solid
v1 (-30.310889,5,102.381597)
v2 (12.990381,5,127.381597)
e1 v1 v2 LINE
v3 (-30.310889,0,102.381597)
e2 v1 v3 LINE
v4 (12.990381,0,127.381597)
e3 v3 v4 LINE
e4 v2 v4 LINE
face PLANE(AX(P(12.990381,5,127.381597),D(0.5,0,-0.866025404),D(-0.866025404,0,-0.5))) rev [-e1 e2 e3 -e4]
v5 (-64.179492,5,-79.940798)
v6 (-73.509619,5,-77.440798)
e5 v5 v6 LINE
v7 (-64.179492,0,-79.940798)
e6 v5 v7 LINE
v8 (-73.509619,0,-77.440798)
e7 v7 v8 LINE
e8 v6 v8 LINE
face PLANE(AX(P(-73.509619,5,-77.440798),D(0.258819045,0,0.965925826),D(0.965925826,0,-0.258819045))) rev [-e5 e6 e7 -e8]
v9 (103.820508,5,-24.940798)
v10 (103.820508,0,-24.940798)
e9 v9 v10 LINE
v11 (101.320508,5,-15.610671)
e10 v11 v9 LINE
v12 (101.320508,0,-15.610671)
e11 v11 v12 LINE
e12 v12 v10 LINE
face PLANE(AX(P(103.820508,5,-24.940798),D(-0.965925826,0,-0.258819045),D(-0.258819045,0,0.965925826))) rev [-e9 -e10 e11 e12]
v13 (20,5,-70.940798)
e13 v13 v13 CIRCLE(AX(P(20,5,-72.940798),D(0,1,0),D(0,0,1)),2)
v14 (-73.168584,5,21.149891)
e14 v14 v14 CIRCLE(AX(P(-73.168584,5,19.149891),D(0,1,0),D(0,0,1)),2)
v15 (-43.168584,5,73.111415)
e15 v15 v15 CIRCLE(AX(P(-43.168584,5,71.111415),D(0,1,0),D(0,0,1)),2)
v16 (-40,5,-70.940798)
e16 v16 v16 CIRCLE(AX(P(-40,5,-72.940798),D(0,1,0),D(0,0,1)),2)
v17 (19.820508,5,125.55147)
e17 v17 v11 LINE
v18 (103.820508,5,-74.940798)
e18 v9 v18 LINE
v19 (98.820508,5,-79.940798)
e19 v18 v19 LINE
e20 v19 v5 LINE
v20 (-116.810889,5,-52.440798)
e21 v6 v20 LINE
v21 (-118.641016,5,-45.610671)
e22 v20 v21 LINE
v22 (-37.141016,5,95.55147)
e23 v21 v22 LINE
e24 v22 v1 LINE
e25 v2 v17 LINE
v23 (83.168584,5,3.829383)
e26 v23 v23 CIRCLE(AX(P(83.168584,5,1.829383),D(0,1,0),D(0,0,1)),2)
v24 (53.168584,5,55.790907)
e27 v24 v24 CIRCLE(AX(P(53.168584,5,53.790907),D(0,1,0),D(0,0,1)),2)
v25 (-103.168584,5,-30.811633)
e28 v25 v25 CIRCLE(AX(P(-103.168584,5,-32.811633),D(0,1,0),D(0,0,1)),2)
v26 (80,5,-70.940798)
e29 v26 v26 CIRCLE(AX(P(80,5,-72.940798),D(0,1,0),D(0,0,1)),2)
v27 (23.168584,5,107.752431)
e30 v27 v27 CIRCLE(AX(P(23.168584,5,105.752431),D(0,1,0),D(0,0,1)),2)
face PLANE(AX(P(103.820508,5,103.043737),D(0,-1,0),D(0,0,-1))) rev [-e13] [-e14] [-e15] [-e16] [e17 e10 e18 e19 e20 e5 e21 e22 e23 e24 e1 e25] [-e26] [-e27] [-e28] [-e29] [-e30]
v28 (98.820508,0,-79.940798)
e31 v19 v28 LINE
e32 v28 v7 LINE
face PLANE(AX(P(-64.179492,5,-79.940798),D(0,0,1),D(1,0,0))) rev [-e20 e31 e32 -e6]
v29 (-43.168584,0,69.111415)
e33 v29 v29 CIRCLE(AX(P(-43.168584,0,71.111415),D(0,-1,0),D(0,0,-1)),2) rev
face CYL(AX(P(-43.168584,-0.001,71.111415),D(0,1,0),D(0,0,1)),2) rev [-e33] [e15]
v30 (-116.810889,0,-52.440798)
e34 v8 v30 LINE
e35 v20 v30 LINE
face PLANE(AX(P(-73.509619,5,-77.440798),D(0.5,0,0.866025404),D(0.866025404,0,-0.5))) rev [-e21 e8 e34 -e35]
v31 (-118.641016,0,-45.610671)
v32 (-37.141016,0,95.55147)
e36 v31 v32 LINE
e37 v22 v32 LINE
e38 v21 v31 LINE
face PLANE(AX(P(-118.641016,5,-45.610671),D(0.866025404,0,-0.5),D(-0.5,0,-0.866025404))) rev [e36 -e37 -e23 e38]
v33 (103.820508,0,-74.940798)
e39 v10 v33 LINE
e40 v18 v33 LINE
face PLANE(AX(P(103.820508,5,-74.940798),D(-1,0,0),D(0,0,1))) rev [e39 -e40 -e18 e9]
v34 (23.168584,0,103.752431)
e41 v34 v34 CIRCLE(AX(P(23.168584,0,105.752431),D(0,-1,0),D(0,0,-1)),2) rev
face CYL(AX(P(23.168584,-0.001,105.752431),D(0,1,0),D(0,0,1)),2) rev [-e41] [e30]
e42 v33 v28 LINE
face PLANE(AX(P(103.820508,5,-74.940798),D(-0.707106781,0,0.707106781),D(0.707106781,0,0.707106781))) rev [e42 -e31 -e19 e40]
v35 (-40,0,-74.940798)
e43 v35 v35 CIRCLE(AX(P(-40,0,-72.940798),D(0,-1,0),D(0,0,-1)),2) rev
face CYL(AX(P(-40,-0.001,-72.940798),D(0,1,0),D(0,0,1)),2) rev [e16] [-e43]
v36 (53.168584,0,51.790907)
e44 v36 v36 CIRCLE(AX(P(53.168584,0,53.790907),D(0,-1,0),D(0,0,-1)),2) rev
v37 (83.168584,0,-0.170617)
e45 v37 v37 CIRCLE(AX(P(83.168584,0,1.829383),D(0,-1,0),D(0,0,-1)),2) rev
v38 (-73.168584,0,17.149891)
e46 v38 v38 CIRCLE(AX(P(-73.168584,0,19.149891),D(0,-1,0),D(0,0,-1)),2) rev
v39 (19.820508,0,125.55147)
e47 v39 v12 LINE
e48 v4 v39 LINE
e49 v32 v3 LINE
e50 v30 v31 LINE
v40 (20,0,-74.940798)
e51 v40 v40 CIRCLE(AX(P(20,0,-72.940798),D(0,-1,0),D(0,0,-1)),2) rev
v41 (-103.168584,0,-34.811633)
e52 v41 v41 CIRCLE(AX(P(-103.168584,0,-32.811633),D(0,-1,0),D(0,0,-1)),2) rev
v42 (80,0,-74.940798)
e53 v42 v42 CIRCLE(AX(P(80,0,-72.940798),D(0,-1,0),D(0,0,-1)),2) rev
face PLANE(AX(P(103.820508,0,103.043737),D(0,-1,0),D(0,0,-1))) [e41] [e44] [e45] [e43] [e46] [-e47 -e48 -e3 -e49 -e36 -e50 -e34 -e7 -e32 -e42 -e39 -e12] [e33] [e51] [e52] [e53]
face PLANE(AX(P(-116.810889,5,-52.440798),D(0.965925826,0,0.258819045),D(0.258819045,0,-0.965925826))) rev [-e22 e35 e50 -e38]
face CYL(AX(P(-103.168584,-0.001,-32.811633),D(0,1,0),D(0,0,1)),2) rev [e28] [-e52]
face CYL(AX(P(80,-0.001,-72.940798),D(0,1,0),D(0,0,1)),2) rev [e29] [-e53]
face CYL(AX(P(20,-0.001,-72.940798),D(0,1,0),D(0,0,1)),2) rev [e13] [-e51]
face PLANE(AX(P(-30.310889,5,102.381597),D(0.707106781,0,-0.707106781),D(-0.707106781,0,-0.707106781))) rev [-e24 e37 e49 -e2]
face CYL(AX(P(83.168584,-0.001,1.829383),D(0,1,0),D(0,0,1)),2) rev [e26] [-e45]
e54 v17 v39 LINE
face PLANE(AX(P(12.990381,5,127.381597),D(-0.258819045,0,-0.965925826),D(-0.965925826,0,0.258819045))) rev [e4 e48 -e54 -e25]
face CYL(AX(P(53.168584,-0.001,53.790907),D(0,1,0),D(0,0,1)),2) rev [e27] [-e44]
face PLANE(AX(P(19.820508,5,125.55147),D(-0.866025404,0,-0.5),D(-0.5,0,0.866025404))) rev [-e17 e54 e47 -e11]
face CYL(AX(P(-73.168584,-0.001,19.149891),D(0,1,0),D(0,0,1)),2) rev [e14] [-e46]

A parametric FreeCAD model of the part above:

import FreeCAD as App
import Part
import Sketcher
Q = App.Units.Quantity


def add_polygon(sketch, points):
    """Adds a closed chain of lines whose ends are joined by coincident constraints."""
    first, n = sketch.GeometryCount, len(points)
    for a, b in zip(points, points[1:] + points[:1]):
        sketch.addGeometry(Part.LineSegment(App.Vector(*a, 0), App.Vector(*b, 0)), False)
    for i in range(n):
        sketch.addConstraint(Sketcher.Constraint("Coincident", first + i, 2, first + (i + 1) % n, 1))

doc = App.newDocument("Part")
params = doc.addObject("Spreadsheet::Sheet", "Params")
for row, (alias, value) in enumerate([
    ("sketch1_width", "163 mm"),
    ("sketch1_height", "50 mm"),
    ("pad1_length", "5 mm"),
    ("sketch2_diameter", "4 mm"),
    ("sketch3_diameter", "4 mm"),
    ("sketch4_diameter", "4 mm"),
    ("sketch5_diameter", "4 mm"),
    ("sketch6_diameter", "4 mm"),
    ("sketch7_diameter", "4 mm"),
    ("sketch8_diameter", "4 mm"),
    ("sketch9_diameter", "4 mm"),
    ("sketch10_diameter", "4 mm"),
], start=1):
    params.set(f"A{row}", alias)
    params.set(f"B{row}", "=" + value)
    params.setAlias(f"B{row}", alias)

body = doc.addObject("PartDesign::Body", "Body")

# Sketch on XZ plane
sketch1 = doc.addObject("Sketcher::SketchObject", "Sketch")
body.addObject(sketch1)
sketch1.AttachmentSupport = (doc.XZ_Plane, [""])
sketch1.MapMode = "FlatFace"
add_polygon(sketch1, [(99, -80), (-64, -80), (-74, -77), (-117, -52), (-119, -46), (-37, 96), (-30, 102), (13, 127), (20, 126), (101, -16), (104, -25), (104, -75)])  # lines 0-11
sketch1.addConstraint([
    Sketcher.Constraint("Horizontal", 0),
    Sketcher.Constraint("Vertical", 10),
    Sketcher.Constraint("Perpendicular", 2, 4),
    Sketcher.Constraint("Parallel", 1, 7),
    Sketcher.Constraint("Perpendicular", 6, 8),
    Sketcher.Constraint("Parallel", 3, 9),
    Sketcher.Constraint("Parallel", 5, 11),
    Sketcher.Constraint("Equal", 1, 5),
    Sketcher.Constraint("Equal", 2, 6),
    Sketcher.Constraint("Equal", 3, 7),
    Sketcher.Constraint("Equal", 4, 8),
    Sketcher.Constraint("Equal", 5, 9),
    Sketcher.Constraint("Equal", 7, 11),
    Sketcher.Constraint("DistanceX", 0, 2, 0, 1, Q("163 mm")),
    Sketcher.Constraint("DistanceY", 10, 2, 10, 1, Q("50 mm")),
    Sketcher.Constraint("Angle", 1, Q("165 deg")),
    Sketcher.Constraint("Angle", 2, Q("150 deg")),
    Sketcher.Constraint("Angle", 3, Q("105 deg")),
    Sketcher.Constraint("Angle", 5, Q("45 deg")),
    Sketcher.Constraint("Angle", 6, Q("30 deg")),
    Sketcher.Constraint("DistanceY", 4, 2, 7, 2, Q("30 mm")),
    Sketcher.Constraint("DistanceX", 0, 2, 7, 2, Q("84 mm")),
    Sketcher.Constraint("DistanceY", 0, 2, -1, 1, Q("79.940798 mm")),
    Sketcher.Constraint("DistanceX", 0, 2, -1, 1, Q("64.179492 mm")),
])
sketch1.setExpression("Constraints[25]", "Params.sketch1_width")
sketch1.setExpression("Constraints[26]", "Params.sketch1_height")
pad1 = doc.addObject("PartDesign::Pad", "Pad")
body.addObject(pad1)
pad1.Profile = sketch1
pad1.setExpression("Length", "Params.pad1_length")
pad1.Reversed = True

# Sketch on XZ plane
sketch2 = doc.addObject("Sketcher::SketchObject", "Sketch001")
body.addObject(sketch2)
sketch2.AttachmentSupport = (doc.XZ_Plane, [""])
sketch2.MapMode = "FlatFace"
sketch2.AttachmentOffset = App.Placement(App.Vector(0, 0, -5), App.Rotation())
sketch2.addGeometry(Part.Circle(App.Vector(-103.2, -32.8, 0), App.Vector(0, 0, 1), 2), False)
sketch2.addConstraint([
    Sketcher.Constraint("Diameter", 0, Q("4 mm")),
    Sketcher.Constraint("DistanceX", 0, 3, -1, 1, Q("103.168584 mm")),
    Sketcher.Constraint("DistanceY", 0, 3, -1, 1, Q("32.811633 mm")),
])
sketch2.setExpression("Constraints[0]", "Params.sketch2_diameter")
pocket1 = doc.addObject("PartDesign::Pocket", "Pocket")
body.addObject(pocket1)
pocket1.Profile = sketch2
pocket1.Type = "UpToFirst"
pocket1.Reversed = True

# Sketch on XZ plane
sketch3 = doc.addObject("Sketcher::SketchObject", "Sketch002")
body.addObject(sketch3)
sketch3.AttachmentSupport = (doc.XZ_Plane, [""])
sketch3.MapMode = "FlatFace"
sketch3.AttachmentOffset = App.Placement(App.Vector(0, 0, -5), App.Rotation())
sketch3.addGeometry(Part.Circle(App.Vector(80, -72.9, 0), App.Vector(0, 0, 1), 2), False)
sketch3.addConstraint([
    Sketcher.Constraint("Diameter", 0, Q("4 mm")),
    Sketcher.Constraint("DistanceX", -1, 1, 0, 3, Q("80 mm")),
    Sketcher.Constraint("DistanceY", 0, 3, -1, 1, Q("72.940798 mm")),
])
sketch3.setExpression("Constraints[0]", "Params.sketch3_diameter")
pocket2 = doc.addObject("PartDesign::Pocket", "Pocket001")
body.addObject(pocket2)
pocket2.Profile = sketch3
pocket2.Type = "UpToFirst"
pocket2.Reversed = True

# Sketch on XZ plane
sketch4 = doc.addObject("Sketcher::SketchObject", "Sketch003")
body.addObject(sketch4)
sketch4.AttachmentSupport = (doc.XZ_Plane, [""])
sketch4.MapMode = "FlatFace"
sketch4.AttachmentOffset = App.Placement(App.Vector(0, 0, -5), App.Rotation())
sketch4.addGeometry(Part.Circle(App.Vector(20, -72.9, 0), App.Vector(0, 0, 1), 2), False)
sketch4.addConstraint([
    Sketcher.Constraint("Diameter", 0, Q("4 mm")),
    Sketcher.Constraint("DistanceX", -1, 1, 0, 3, Q("20 mm")),
    Sketcher.Constraint("DistanceY", 0, 3, -1, 1, Q("72.940798 mm")),
])
sketch4.setExpression("Constraints[0]", "Params.sketch4_diameter")
pocket3 = doc.addObject("PartDesign::Pocket", "Pocket002")
body.addObject(pocket3)
pocket3.Profile = sketch4
pocket3.Type = "UpToFirst"
pocket3.Reversed = True

# Sketch on XZ plane
sketch5 = doc.addObject("Sketcher::SketchObject", "Sketch004")
body.addObject(sketch5)
sketch5.AttachmentSupport = (doc.XZ_Plane, [""])
sketch5.MapMode = "FlatFace"
sketch5.AttachmentOffset = App.Placement(App.Vector(0, 0, -5), App.Rotation())
sketch5.addGeometry(Part.Circle(App.Vector(-73.2, 19.1, 0), App.Vector(0, 0, 1), 2), False)
sketch5.addConstraint([
    Sketcher.Constraint("Diameter", 0, Q("4 mm")),
    Sketcher.Constraint("DistanceY", -1, 1, 0, 3, Q("19.149891 mm")),
    Sketcher.Constraint("DistanceX", 0, 3, -1, 1, Q("73.168584 mm")),
])
sketch5.setExpression("Constraints[0]", "Params.sketch5_diameter")
pocket4 = doc.addObject("PartDesign::Pocket", "Pocket003")
body.addObject(pocket4)
pocket4.Profile = sketch5
pocket4.Type = "UpToFirst"
pocket4.Reversed = True

# Sketch on XZ plane
sketch6 = doc.addObject("Sketcher::SketchObject", "Sketch005")
body.addObject(sketch6)
sketch6.AttachmentSupport = (doc.XZ_Plane, [""])
sketch6.MapMode = "FlatFace"
sketch6.AttachmentOffset = App.Placement(App.Vector(0, 0, -5), App.Rotation())
sketch6.addGeometry(Part.Circle(App.Vector(-43.2, 71.1, 0), App.Vector(0, 0, 1), 2), False)
sketch6.addConstraint([
    Sketcher.Constraint("Diameter", 0, Q("4 mm")),
    Sketcher.Constraint("DistanceX", 0, 3, -1, 1, Q("43.168584 mm")),
    Sketcher.Constraint("DistanceY", -1, 1, 0, 3, Q("71.111415 mm")),
])
sketch6.setExpression("Constraints[0]", "Params.sketch6_diameter")
pocket5 = doc.addObject("PartDesign::Pocket", "Pocket004")
body.addObject(pocket5)
pocket5.Profile = sketch6
pocket5.Type = "UpToFirst"
pocket5.Reversed = True

# Sketch on XZ plane
sketch7 = doc.addObject("Sketcher::SketchObject", "Sketch006")
body.addObject(sketch7)
sketch7.AttachmentSupport = (doc.XZ_Plane, [""])
sketch7.MapMode = "FlatFace"
sketch7.AttachmentOffset = App.Placement(App.Vector(0, 0, -5), App.Rotation())
sketch7.addGeometry(Part.Circle(App.Vector(-40, -72.9, 0), App.Vector(0, 0, 1), 2), False)
sketch7.addConstraint([
    Sketcher.Constraint("Diameter", 0, Q("4 mm")),
    Sketcher.Constraint("DistanceX", 0, 3, -1, 1, Q("40 mm")),
    Sketcher.Constraint("DistanceY", 0, 3, -1, 1, Q("72.940798 mm")),
])
sketch7.setExpression("Constraints[0]", "Params.sketch7_diameter")
pocket6 = doc.addObject("PartDesign::Pocket", "Pocket005")
body.addObject(pocket6)
pocket6.Profile = sketch7
pocket6.Type = "UpToFirst"
pocket6.Reversed = True

# Sketch on XZ plane
sketch8 = doc.addObject("Sketcher::SketchObject", "Sketch007")
body.addObject(sketch8)
sketch8.AttachmentSupport = (doc.XZ_Plane, [""])
sketch8.MapMode = "FlatFace"
sketch8.AttachmentOffset = App.Placement(App.Vector(0, 0, -5), App.Rotation())
sketch8.addGeometry(Part.Circle(App.Vector(23.2, 105.8, 0), App.Vector(0, 0, 1), 2), False)
sketch8.addConstraint([
    Sketcher.Constraint("Diameter", 0, Q("4 mm")),
    Sketcher.Constraint("DistanceY", -1, 1, 0, 3, Q("105.752431 mm")),
    Sketcher.Constraint("DistanceX", -1, 1, 0, 3, Q("23.168584 mm")),
])
sketch8.setExpression("Constraints[0]", "Params.sketch8_diameter")
pocket7 = doc.addObject("PartDesign::Pocket", "Pocket006")
body.addObject(pocket7)
pocket7.Profile = sketch8
pocket7.Type = "UpToFirst"
pocket7.Reversed = True

# Sketch on XZ plane
sketch9 = doc.addObject("Sketcher::SketchObject", "Sketch008")
body.addObject(sketch9)
sketch9.AttachmentSupport = (doc.XZ_Plane, [""])
sketch9.MapMode = "FlatFace"
sketch9.AttachmentOffset = App.Placement(App.Vector(0, 0, -5), App.Rotation())
sketch9.addGeometry(Part.Circle(App.Vector(53.2, 53.8, 0), App.Vector(0, 0, 1), 2), False)
sketch9.addConstraint([
    Sketcher.Constraint("Diameter", 0, Q("4 mm")),
    Sketcher.Constraint("DistanceX", -1, 1, 0, 3, Q("53.168584 mm")),
    Sketcher.Constraint("DistanceY", -1, 1, 0, 3, Q("53.790907 mm")),
])
sketch9.setExpression("Constraints[0]", "Params.sketch9_diameter")
pocket8 = doc.addObject("PartDesign::Pocket", "Pocket007")
body.addObject(pocket8)
pocket8.Profile = sketch9
pocket8.Type = "UpToFirst"
pocket8.Reversed = True

# Sketch on XZ plane
sketch10 = doc.addObject("Sketcher::SketchObject", "Sketch009")
body.addObject(sketch10)
sketch10.AttachmentSupport = (doc.XZ_Plane, [""])
sketch10.MapMode = "FlatFace"
sketch10.AttachmentOffset = App.Placement(App.Vector(0, 0, -5), App.Rotation())
sketch10.addGeometry(Part.Circle(App.Vector(83.2, 1.8, 0), App.Vector(0, 0, 1), 2), False)
sketch10.addConstraint([
    Sketcher.Constraint("Diameter", 0, Q("4 mm")),
    Sketcher.Constraint("DistanceX", -1, 1, 0, 3, Q("83.168584 mm")),
    Sketcher.Constraint("DistanceY", -1, 1, 0, 3, Q("1.829383 mm")),
])
sketch10.setExpression("Constraints[0]", "Params.sketch10_diameter")
pocket9 = doc.addObject("PartDesign::Pocket", "Pocket008")
body.addObject(pocket9)
pocket9.Profile = sketch10
pocket9.Type = "UpToFirst"
pocket9.Reversed = True

doc.recompute()
